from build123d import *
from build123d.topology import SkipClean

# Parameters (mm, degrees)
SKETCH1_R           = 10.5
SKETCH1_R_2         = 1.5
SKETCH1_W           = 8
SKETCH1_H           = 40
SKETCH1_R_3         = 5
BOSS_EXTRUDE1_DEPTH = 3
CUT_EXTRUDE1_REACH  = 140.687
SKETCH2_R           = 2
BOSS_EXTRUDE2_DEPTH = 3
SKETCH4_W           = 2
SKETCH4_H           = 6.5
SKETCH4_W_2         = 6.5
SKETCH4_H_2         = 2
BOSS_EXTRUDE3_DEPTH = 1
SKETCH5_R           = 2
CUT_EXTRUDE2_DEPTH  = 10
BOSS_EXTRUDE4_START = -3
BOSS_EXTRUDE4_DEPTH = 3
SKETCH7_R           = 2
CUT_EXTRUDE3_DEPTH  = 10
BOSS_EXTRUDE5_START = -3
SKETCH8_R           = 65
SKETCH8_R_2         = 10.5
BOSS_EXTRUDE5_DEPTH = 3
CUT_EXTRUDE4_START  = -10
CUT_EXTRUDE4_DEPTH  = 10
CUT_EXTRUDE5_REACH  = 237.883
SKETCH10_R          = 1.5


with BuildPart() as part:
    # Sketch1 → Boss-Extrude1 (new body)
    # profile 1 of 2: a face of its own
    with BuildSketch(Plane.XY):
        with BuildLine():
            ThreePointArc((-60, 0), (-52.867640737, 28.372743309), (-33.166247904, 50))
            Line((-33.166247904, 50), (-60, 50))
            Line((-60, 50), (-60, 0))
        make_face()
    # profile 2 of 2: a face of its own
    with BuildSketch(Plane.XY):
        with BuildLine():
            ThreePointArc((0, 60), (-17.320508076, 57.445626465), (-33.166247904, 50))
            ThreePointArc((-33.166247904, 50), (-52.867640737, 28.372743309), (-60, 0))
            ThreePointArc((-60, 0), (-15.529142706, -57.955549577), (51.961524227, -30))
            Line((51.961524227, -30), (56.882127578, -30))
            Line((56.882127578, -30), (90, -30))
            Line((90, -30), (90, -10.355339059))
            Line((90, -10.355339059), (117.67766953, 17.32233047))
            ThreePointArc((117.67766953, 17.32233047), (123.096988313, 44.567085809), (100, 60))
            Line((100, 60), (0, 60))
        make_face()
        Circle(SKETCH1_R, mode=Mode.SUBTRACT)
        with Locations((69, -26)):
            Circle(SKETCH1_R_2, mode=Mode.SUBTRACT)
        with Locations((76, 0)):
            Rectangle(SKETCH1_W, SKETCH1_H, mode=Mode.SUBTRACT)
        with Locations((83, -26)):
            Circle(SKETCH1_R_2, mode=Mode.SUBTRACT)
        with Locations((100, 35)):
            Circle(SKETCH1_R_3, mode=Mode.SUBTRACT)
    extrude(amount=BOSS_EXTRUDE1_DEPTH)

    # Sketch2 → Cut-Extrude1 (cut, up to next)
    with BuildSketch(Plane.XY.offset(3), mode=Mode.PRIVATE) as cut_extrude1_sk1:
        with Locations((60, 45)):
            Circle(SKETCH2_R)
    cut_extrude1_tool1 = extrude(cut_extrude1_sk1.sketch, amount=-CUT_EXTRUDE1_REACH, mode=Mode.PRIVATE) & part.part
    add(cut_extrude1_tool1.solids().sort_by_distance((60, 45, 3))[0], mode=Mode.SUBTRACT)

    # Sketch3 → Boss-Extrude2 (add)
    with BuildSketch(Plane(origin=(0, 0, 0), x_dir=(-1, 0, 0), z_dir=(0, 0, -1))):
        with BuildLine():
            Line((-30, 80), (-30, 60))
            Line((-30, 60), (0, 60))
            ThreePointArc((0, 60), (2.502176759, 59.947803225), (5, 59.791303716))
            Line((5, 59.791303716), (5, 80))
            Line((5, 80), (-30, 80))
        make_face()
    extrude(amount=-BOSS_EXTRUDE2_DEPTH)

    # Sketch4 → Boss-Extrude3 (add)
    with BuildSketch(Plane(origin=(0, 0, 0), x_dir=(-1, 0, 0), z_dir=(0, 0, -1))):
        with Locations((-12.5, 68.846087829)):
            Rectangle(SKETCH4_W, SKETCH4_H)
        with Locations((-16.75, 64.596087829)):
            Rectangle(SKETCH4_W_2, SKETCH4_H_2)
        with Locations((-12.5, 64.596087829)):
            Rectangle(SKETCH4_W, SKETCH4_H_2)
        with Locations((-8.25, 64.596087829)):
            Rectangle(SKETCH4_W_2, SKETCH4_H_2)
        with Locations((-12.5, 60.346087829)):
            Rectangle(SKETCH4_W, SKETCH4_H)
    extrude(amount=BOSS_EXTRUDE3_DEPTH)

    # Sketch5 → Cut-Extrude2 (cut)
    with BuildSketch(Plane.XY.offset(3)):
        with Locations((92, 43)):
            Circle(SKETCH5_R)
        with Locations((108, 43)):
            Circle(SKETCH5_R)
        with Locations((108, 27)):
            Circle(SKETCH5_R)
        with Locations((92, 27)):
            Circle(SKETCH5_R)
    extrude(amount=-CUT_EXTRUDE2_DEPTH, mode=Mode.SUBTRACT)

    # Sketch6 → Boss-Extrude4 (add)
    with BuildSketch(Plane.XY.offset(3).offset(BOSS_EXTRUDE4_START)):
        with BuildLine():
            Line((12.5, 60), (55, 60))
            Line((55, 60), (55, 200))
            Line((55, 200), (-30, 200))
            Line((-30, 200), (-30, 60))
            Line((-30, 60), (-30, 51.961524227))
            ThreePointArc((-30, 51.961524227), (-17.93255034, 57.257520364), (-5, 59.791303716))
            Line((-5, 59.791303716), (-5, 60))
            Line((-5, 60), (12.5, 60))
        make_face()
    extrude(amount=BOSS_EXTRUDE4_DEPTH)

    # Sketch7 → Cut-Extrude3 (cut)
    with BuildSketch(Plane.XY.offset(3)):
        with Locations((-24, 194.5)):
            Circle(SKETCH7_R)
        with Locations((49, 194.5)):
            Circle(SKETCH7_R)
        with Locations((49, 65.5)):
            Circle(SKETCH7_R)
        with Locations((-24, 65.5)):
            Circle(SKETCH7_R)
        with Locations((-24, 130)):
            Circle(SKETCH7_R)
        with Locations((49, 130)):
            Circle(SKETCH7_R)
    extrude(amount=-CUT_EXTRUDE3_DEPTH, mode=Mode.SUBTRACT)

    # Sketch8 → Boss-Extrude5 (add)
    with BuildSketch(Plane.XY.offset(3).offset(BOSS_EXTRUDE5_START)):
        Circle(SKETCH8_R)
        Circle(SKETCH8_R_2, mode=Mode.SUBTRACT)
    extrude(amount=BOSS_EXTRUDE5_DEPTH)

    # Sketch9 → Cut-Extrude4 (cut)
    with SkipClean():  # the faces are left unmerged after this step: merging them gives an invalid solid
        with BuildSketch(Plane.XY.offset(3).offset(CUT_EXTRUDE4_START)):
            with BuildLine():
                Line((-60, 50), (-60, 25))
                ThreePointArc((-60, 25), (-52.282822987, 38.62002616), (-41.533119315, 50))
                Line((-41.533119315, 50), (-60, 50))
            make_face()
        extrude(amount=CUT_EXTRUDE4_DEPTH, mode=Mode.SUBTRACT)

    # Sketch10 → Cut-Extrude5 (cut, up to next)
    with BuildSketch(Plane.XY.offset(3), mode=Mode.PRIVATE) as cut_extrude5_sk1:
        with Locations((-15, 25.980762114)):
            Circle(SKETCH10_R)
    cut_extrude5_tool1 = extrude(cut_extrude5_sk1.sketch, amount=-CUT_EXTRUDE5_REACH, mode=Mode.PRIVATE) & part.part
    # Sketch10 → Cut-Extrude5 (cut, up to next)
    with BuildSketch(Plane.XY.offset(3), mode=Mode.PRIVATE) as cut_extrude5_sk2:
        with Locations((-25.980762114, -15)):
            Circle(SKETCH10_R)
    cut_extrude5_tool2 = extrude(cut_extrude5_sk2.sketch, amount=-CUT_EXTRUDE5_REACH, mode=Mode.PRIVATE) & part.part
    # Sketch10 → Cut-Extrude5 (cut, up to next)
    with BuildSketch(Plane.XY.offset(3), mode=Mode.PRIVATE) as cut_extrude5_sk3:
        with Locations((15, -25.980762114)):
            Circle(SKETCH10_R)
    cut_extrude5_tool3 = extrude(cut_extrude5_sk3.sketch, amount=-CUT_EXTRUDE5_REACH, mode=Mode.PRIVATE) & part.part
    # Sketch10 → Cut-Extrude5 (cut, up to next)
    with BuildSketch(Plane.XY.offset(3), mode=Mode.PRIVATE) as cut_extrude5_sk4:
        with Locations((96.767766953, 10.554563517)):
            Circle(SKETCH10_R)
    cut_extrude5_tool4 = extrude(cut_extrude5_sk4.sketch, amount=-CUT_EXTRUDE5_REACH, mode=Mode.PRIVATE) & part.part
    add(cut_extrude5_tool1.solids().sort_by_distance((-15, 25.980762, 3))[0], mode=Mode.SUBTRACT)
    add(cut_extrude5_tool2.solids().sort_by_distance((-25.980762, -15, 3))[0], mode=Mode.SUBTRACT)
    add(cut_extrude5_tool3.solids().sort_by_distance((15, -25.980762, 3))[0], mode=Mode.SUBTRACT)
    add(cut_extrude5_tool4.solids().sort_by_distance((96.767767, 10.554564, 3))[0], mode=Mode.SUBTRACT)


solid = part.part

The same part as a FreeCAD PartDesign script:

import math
import FreeCAD as App
import Part
import Sketcher

V = App.Vector
Q = App.Units.Quantity


def add_polygon(sketch, points):
    """Adds a closed chain of lines whose ends are joined by coincident constraints."""
    first, n = sketch.GeometryCount, len(points)
    for a, b in zip(points, points[1:] + points[:1]):
        sketch.addGeometry(Part.LineSegment(App.Vector(*a, 0), App.Vector(*b, 0)), False)
    for i in range(n):
        sketch.addConstraint(Sketcher.Constraint("Coincident", first + i, 2, first + (i + 1) % n, 1))

doc = App.newDocument("Part")
body = doc.addObject("PartDesign::Body", "Body")

# Sketch on XY plane
sketch1 = body.newObject("Sketcher::SketchObject", "Sketch")
sketch1.AttachmentSupport = (doc.getObject("XY_Plane"), [""])
sketch1.MapMode = "FlatFace"
sketch1.addGeometry(Part.LineSegment(V(-33.166248, 50, 0), V(-60, 50, 0)), False)  # 0
sketch1.addGeometry(Part.LineSegment(V(-60, 50, 0), V(-60, 0, 0)), False)  # 1
sketch1.addGeometry(Part.ArcOfCircle(Part.Circle(V(0, 0, 0), V(0, 0, 1), 60), math.radians(180), math.radians(330)), False)  # 2
sketch1.addGeometry(Part.LineSegment(V(51.961524, -30, 0), V(90, -30, 0)), False)  # 3
sketch1.addGeometry(Part.LineSegment(V(90, -30, 0), V(90, -10.355339, 0)), False)  # 4
sketch1.addGeometry(Part.LineSegment(V(90, -10.355339, 0), V(117.67767, 17.32233, 0)), False)  # 5
sketch1.addGeometry(Part.ArcOfCircle(Part.Circle(V(100, 35, 0), V(0, 0, 1), 25), math.radians(-45), math.radians(90)), False)  # 6
sketch1.addGeometry(Part.LineSegment(V(100, 60, 0), V(0, 60, 0)), False)  # 7
sketch1.addGeometry(Part.ArcOfCircle(Part.Circle(V(0, 0, 0), V(0, 0, 1), 60), math.radians(90), math.radians(123.55731)), False)  # 8
sketch1.addGeometry(Part.Circle(V(100, 35, 0), V(0, 0, 1), 5), False)  # 9
sketch1.addGeometry(Part.Circle(V(0, 0, 0), V(0, 0, 1), 10.5), False)  # 10
sketch1.addGeometry(Part.Circle(V(69, -26, 0), V(0, 0, 1), 1.5), False)  # 11
sketch1.addGeometry(Part.Circle(V(83, -26, 0), V(0, 0, 1), 1.5), False)  # 12
add_polygon(sketch1, [(80, -20), (72, -20), (72, 20), (80, 20)])  # lines 13-16
sketch1.addConstraint([
    Sketcher.Constraint("Coincident", 0, 2, 1, 1),
    Sketcher.Constraint("Tangent", 1, 2, 2, 1),
    Sketcher.Constraint("Coincident", 2, 2, 3, 1),
    Sketcher.Constraint("Coincident", 3, 2, 4, 1),
    Sketcher.Constraint("Coincident", 4, 2, 5, 1),
    Sketcher.Constraint("Tangent", 5, 2, 6, 1),
    Sketcher.Constraint("Tangent", 6, 2, 7, 1),
    Sketcher.Constraint("Tangent", 7, 2, 8, 1),
    Sketcher.Constraint("Coincident", 8, 2, 0, 1),
    Sketcher.Constraint("Horizontal", 0),
    Sketcher.Constraint("Vertical", 1),
    Sketcher.Constraint("Horizontal", 3),
    Sketcher.Constraint("Vertical", 4),
    Sketcher.Constraint("Horizontal", 7),
    Sketcher.Constraint("Horizontal", 13),
    Sketcher.Constraint("Vertical", 14),
    Sketcher.Constraint("Horizontal", 15),
    Sketcher.Constraint("Vertical", 16),
    Sketcher.Constraint("Coincident", 2, 3, -1, 1),
    Sketcher.Constraint("Coincident", 8, 3, -1, 1),
    Sketcher.Constraint("Coincident", 10, 3, -1, 1),
    Sketcher.Constraint("Coincident", 9, 3, 6, 3),
    Sketcher.Constraint("Equal", 2, 8),
    Sketcher.Constraint("Equal", 11, 12),
    Sketcher.Constraint("Horizontal", 11, 3, 12, 3),
    Sketcher.Constraint("Diameter", 9, Q("10 mm")),
    Sketcher.Constraint("Diameter", 10, Q("21 mm")),
    Sketcher.Constraint("Diameter", 11, Q("3 mm")),
    Sketcher.Constraint("Radius", 2, Q("60 mm")),
    Sketcher.Constraint("Radius", 6, Q("25 mm")),
    Sketcher.Constraint("DistanceX", 7, 2, 7, 1, Q("100 mm")),
    Sketcher.Constraint("DistanceX", 13, 2, 13, 1, Q("8 mm")),
    Sketcher.Constraint("DistanceY", 1, 2, 1, 1, Q("50 mm")),
    Sketcher.Constraint("DistanceY", 14, 1, 14, 2, Q("40 mm")),
    Sketcher.Constraint("Angle", 5, Q("45 deg")),
    Sketcher.Constraint("DistanceX", -1, 1, 11, 3, Q("69 mm")),
    Sketcher.Constraint("DistanceY", 11, 3, -1, 1, Q("26 mm")),
    Sketcher.Constraint("DistanceX", -1, 1, 12, 3, Q("83 mm")),
    Sketcher.Constraint("DistanceY", 2, 2, -1, 1, Q("30 mm")),
    Sketcher.Constraint("DistanceX", -1, 1, 3, 2, Q("90 mm")),
    Sketcher.Constraint("DistanceX", -1, 1, 13, 2, Q("72 mm")),
    Sketcher.Constraint("DistanceY", 13, 2, -1, 1, Q("20 mm")),
])
pad1 = body.newObject("PartDesign::Pad", "Pad")
pad1.Profile = sketch1
pad1.Length = 3

# Sketch on XY plane
sketch2 = body.newObject("Sketcher::SketchObject", "Sketch001")
sketch2.AttachmentSupport = (doc.getObject("XY_Plane"), [""])
sketch2.MapMode = "FlatFace"
sketch2.AttachmentOffset = App.Placement(V(0, 0, 3), App.Rotation())
sketch2.addGeometry(Part.Circle(V(60, 45, 0), V(0, 0, 1), 2), False)
sketch2.addConstraint([
    Sketcher.Constraint("Diameter", 0, Q("4 mm")),
    Sketcher.Constraint("DistanceX", -1, 1, 0, 3, Q("60 mm")),
    Sketcher.Constraint("DistanceY", -1, 1, 0, 3, Q("45 mm")),
])
pocket1 = body.newObject("PartDesign::Pocket", "Pocket")
pocket1.Profile = sketch2
pocket1.Type = "UpToFirst"

# Sketch on XY plane
sketch3 = body.newObject("Sketcher::SketchObject", "Sketch002")
sketch3.AttachmentSupport = (doc.getObject("XY_Plane"), [""])
sketch3.MapMode = "FlatFace"
sketch3.addGeometry([
    Part.LineSegment(V(30, 80, 0), V(30, 60, 0)),  # 0
    Part.LineSegment(V(30, 60, 0), V(0, 60, 0)),  # 1
    Part.ArcOfCircle(Part.Circle(V(0, 0, 0), V(0, 0, 1), 60), math.radians(90), math.radians(94.780192)),  # 2
    Part.LineSegment(V(-5, 59.791304, 0), V(-5, 80, 0)),  # 3
    Part.LineSegment(V(-5, 80, 0), V(30, 80, 0)),  # 4
], False)
sketch3.addConstraint([
    Sketcher.Constraint("Coincident", 0, 2, 1, 1),
    Sketcher.Constraint("Tangent", 1, 2, 2, 1),
    Sketcher.Constraint("Coincident", 2, 2, 3, 1),
    Sketcher.Constraint("Coincident", 3, 2, 4, 1),
    Sketcher.Constraint("Coincident", 4, 2, 0, 1),
    Sketcher.Constraint("Vertical", 0),
    Sketcher.Constraint("Horizontal", 1),
    Sketcher.Constraint("Vertical", 3),
    Sketcher.Constraint("Horizontal", 4),
    Sketcher.Constraint("Coincident", 2, 3, -1, 1),
    Sketcher.Constraint("Radius", 2, Q("60 mm")),
    Sketcher.Constraint("DistanceX", 1, 2, 1, 1, Q("30 mm")),
    Sketcher.Constraint("DistanceX", 4, 1, 4, 2, Q("35 mm")),
    Sketcher.Constraint("DistanceY", 0, 2, 0, 1, Q("20 mm")),
])
pad2 = body.newObject("PartDesign::Pad", "Pad001")
pad2.Profile = sketch3
pad2.Length = 3

# Sketch on XY plane
sketch4 = body.newObject("Sketcher::SketchObject", "Sketch003")
sketch4.AttachmentSupport = (doc.getObject("XY_Plane"), [""])
sketch4.MapMode = "FlatFace"
add_polygon(sketch4, [(13.5, 72.096088), (13.5, 65.596088), (20, 65.596088), (20, 63.596088), (13.5, 63.596088), (13.5, 57.096088), (11.5, 57.096088), (11.5, 63.596088), (5, 63.596088), (5, 65.596088), (11.5, 65.596088), (11.5, 72.096088)])  # lines 0-11
sketch4.addConstraint([
    Sketcher.Constraint("Vertical", 0),
    Sketcher.Constraint("Horizontal", 1),
    Sketcher.Constraint("Vertical", 2),
    Sketcher.Constraint("Horizontal", 3),
    Sketcher.Constraint("Vertical", 4),
    Sketcher.Constraint("Horizontal", 5),
    Sketcher.Constraint("Vertical", 6),
    Sketcher.Constraint("Horizontal", 7),
    Sketcher.Constraint("Vertical", 8),
    Sketcher.Constraint("Horizontal", 9),
    Sketcher.Constraint("Vertical", 10),
    Sketcher.Constraint("Horizontal", 11),
    Sketcher.Constraint("Horizontal", 3, 2, 6, 2),
    Sketcher.Constraint("Horizontal", 1, 2, 8, 2),
    Sketcher.Constraint("Vertical", 0, 2, 3, 2),
    Sketcher.Constraint("Vertical", 6, 2, 9, 2),
    Sketcher.Constraint("Equal", 3, 7),
    Sketcher.Constraint("Equal", 9, 0),
    Sketcher.Constraint("Equal", 11, 2),
    Sketcher.Constraint("Equal", 0, 4),
    Sketcher.Constraint("DistanceX", 5, 2, 5, 1, Q("2 mm")),
    Sketcher.Constraint("DistanceX", 1, 1, 1, 2, Q("6.5 mm")),
    Sketcher.Constraint("DistanceX", -1, 1, 1, 2, Q("20 mm")),
    Sketcher.Constraint("DistanceY", -1, 1, 0, 2, Q("65.596088 mm")),
])
pad3 = body.newObject("PartDesign::Pad", "Pad002")
pad3.Profile = sketch4
pad3.Length = 1
pad3.Reversed = True

# Sketch on XY plane
sketch5 = body.newObject("Sketcher::SketchObject", "Sketch004")
sketch5.AttachmentSupport = (doc.getObject("XY_Plane"), [""])
sketch5.MapMode = "FlatFace"
sketch5.AttachmentOffset = App.Placement(V(0, 0, 3), App.Rotation())
sketch5.addGeometry([
    Part.Circle(V(92, 43, 0), V(0, 0, 1), 2),
    Part.Circle(V(108, 43, 0), V(0, 0, 1), 2),
    Part.Circle(V(108, 27, 0), V(0, 0, 1), 2),
    Part.Circle(V(92, 27, 0), V(0, 0, 1), 2),
], False)
sketch5.addConstraint([
    Sketcher.Constraint("Equal", 0, 1),
    Sketcher.Constraint("Equal", 1, 2),
    Sketcher.Constraint("Equal", 2, 3),
    Sketcher.Constraint("Horizontal", 0, 3, 1, 3),
    Sketcher.Constraint("Horizontal", 2, 3, 3, 3),
    Sketcher.Constraint("Vertical", 1, 3, 2, 3),
    Sketcher.Constraint("Vertical", 0, 3, 3, 3),
    Sketcher.Constraint("Diameter", 0, Q("4 mm")),
    Sketcher.Constraint("DistanceX", -1, 1, 0, 3, Q("92 mm")),
    Sketcher.Constraint("DistanceY", -1, 1, 0, 3, Q("43 mm")),
    Sketcher.Constraint("DistanceX", -1, 1, 1, 3, Q("108 mm")),
    Sketcher.Constraint("DistanceY", -1, 1, 2, 3, Q("27 mm")),
])
pocket2 = body.newObject("PartDesign::Pocket", "Pocket001")
pocket2.Profile = sketch5
pocket2.Length = 10

# Sketch on XY plane
sketch6 = body.newObject("Sketcher::SketchObject", "Sketch005")
sketch6.AttachmentSupport = (doc.getObject("XY_Plane"), [""])
sketch6.MapMode = "FlatFace"
sketch6.addGeometry([
    Part.LineSegment(V(55, 60, 0), V(55, 200, 0)),  # 0
    Part.LineSegment(V(55, 200, 0), V(-30, 200, 0)),  # 1
    Part.LineSegment(V(-30, 200, 0), V(-30, 51.961524, 0)),  # 2
    Part.ArcOfCircle(Part.Circle(V(0, 0, 0), V(0, 0, 1), 60), math.radians(94.780192), math.radians(120)),  # 3
    Part.LineSegment(V(-5, 59.791304, 0), V(-5, 60, 0)),  # 4
    Part.LineSegment(V(-5, 60, 0), V(55, 60, 0)),  # 5
], False)
sketch6.addConstraint([
    Sketcher.Constraint("Coincident", 0, 2, 1, 1),
    Sketcher.Constraint("Coincident", 1, 2, 2, 1),
    Sketcher.Constraint("Coincident", 2, 2, 3, 2),
    Sketcher.Constraint("Coincident", 3, 1, 4, 1),
    Sketcher.Constraint("Coincident", 4, 2, 5, 1),
    Sketcher.Constraint("Coincident", 5, 2, 0, 1),
    Sketcher.Constraint("Vertical", 0),
    Sketcher.Constraint("Horizontal", 1),
    Sketcher.Constraint("Vertical", 2),
    Sketcher.Constraint("Vertical", 4),
    Sketcher.Constraint("Horizontal", 5),
    Sketcher.Constraint("Coincident", 3, 3, -1, 1),
    Sketcher.Constraint("Radius", 3, Q("60 mm")),
    Sketcher.Constraint("DistanceX", 1, 2, 1, 1, Q("85 mm")),
    Sketcher.Constraint("DistanceX", 5, 1, 5, 2, Q("60 mm")),
    Sketcher.Constraint("DistanceY", 0, 1, 0, 2, Q("140 mm")),
    Sketcher.Constraint("DistanceX", -1, 1, 0, 2, Q("55 mm")),
    Sketcher.Constraint("DistanceY", -1, 1, 0, 2, Q("200 mm")),
])
pad4 = body.newObject("PartDesign::Pad", "Pad003")
pad4.Profile = sketch6
pad4.Length = 3

# Sketch on XY plane
sketch7 = body.newObject("Sketcher::SketchObject", "Sketch006")
sketch7.AttachmentSupport = (doc.getObject("XY_Plane"), [""])
sketch7.MapMode = "FlatFace"
sketch7.AttachmentOffset = App.Placement(V(0, 0, 3), App.Rotation())
sketch7.addGeometry([
    Part.Circle(V(-24, 194.5, 0), V(0, 0, 1), 2),  # 0
    Part.Circle(V(49, 194.5, 0), V(0, 0, 1), 2),  # 1
    Part.Circle(V(49, 65.5, 0), V(0, 0, 1), 2),  # 2
    Part.Circle(V(-24, 65.5, 0), V(0, 0, 1), 2),  # 3
    Part.Circle(V(-24, 130, 0), V(0, 0, 1), 2),  # 4
    Part.Circle(V(49, 130, 0), V(0, 0, 1), 2),  # 5
], False)
sketch7.addConstraint([
    Sketcher.Constraint("Equal", 0, 1),
    Sketcher.Constraint("Equal", 1, 2),
    Sketcher.Constraint("Equal", 2, 3),
    Sketcher.Constraint("Equal", 3, 4),
    Sketcher.Constraint("Equal", 4, 5),
    Sketcher.Constraint("Horizontal", 0, 3, 1, 3),
    Sketcher.Constraint("Horizontal", 2, 3, 3, 3),
    Sketcher.Constraint("Horizontal", 4, 3, 5, 3),
    Sketcher.Constraint("Vertical", 1, 3, 2, 3),
    Sketcher.Constraint("Vertical", 0, 3, 3, 3),
    Sketcher.Constraint("Vertical", 3, 3, 4, 3),
    Sketcher.Constraint("Vertical", 2, 3, 5, 3),
    Sketcher.Constraint("Diameter", 0, Q("4 mm")),
    Sketcher.Constraint("DistanceX", 0, 3, -1, 1, Q("24 mm")),
    Sketcher.Constraint("DistanceX", -1, 1, 1, 3, Q("49 mm")),
    Sketcher.Constraint("DistanceY", -1, 1, 4, 3, Q("130 mm")),
    Sketcher.Constraint("DistanceY", 2, 3, 1, 3, Q("129 mm")),
    Sketcher.Constraint("DistanceY", -1, 1, 0, 3, Q("194.5 mm")),
])
pocket3 = body.newObject("PartDesign::Pocket", "Pocket002")
pocket3.Profile = sketch7
pocket3.Length = 10

# Sketch on XY plane
sketch8 = body.newObject("Sketcher::SketchObject", "Sketch007")
sketch8.AttachmentSupport = (doc.getObject("XY_Plane"), [""])
sketch8.MapMode = "FlatFace"
sketch8.addGeometry([
    Part.Circle(V(0, 0, 0), V(0, 0, 1), 65),
    Part.Circle(V(0, 0, 0), V(0, 0, 1), 10.5),
], False)
sketch8.addConstraint([
    Sketcher.Constraint("Coincident", 0, 3, -1, 1),
    Sketcher.Constraint("Coincident", 1, 3, -1, 1),
    Sketcher.Constraint("Diameter", 0, Q("130 mm")),
    Sketcher.Constraint("Diameter", 1, Q("21 mm")),
])
pad5 = body.newObject("PartDesign::Pad", "Pad004")
pad5.Profile = sketch8
pad5.Length = 3

# Sketch on XY plane
sketch9 = body.newObject("Sketcher::SketchObject", "Sketch008")
sketch9.AttachmentSupport = (doc.getObject("XY_Plane"), [""])
sketch9.MapMode = "FlatFace"
sketch9.AttachmentOffset = App.Placement(V(0, 0, -7), App.Rotation())
sketch9.addGeometry([
    Part.LineSegment(V(-60, 50, 0), V(-60, 25, 0)),
    Part.ArcOfCircle(Part.Circle(V(0, 0, 0), V(0, 0, 1), 65), math.radians(129.715137), math.radians(157.380135)),
    Part.LineSegment(V(-41.533119, 50, 0), V(-60, 50, 0)),
], False)
sketch9.addConstraint([
    Sketcher.Constraint("Coincident", 0, 2, 1, 2),
    Sketcher.Constraint("Coincident", 1, 1, 2, 1),
    Sketcher.Constraint("Coincident", 2, 2, 0, 1),
    Sketcher.Constraint("Vertical", 0),
    Sketcher.Constraint("Horizontal", 2),
    Sketcher.Constraint("Coincident", 1, 3, -1, 1),
    Sketcher.Constraint("Radius", 1, Q("65 mm")),
    Sketcher.Constraint("DistanceY", 0, 2, 0, 1, Q("25 mm")),
    Sketcher.Constraint("DistanceX", 0, 2, -1, 1, Q("60 mm")),
])
pocket4 = body.newObject("PartDesign::Pocket", "Pocket003")
pocket4.Profile = sketch9
pocket4.Length = 10
pocket4.Reversed = True

# Sketch on XY plane
sketch10 = body.newObject("Sketcher::SketchObject", "Sketch009")
sketch10.AttachmentSupport = (doc.getObject("XY_Plane"), [""])
sketch10.MapMode = "FlatFace"
sketch10.AttachmentOffset = App.Placement(V(0, 0, 3), App.Rotation())
sketch10.addGeometry(Part.Circle(V(-15, 25.980762, 0), V(0, 0, 1), 1.5), False)
sketch10.addConstraint([
    Sketcher.Constraint("Diameter", 0, Q("3 mm")),
    Sketcher.Constraint("DistanceX", 0, 3, -1, 1, Q("15 mm")),
    Sketcher.Constraint("DistanceY", -1, 1, 0, 3, Q("25.980762 mm")),
])
pocket5 = body.newObject("PartDesign::Pocket", "Pocket004")
pocket5.Profile = sketch10
pocket5.Type = "UpToFirst"

# Sketch on XY plane
sketch11 = body.newObject("Sketcher::SketchObject", "Sketch010")
sketch11.AttachmentSupport = (doc.getObject("XY_Plane"), [""])
sketch11.MapMode = "FlatFace"
sketch11.AttachmentOffset = App.Placement(V(0, 0, 3), App.Rotation())
sketch11.addGeometry(Part.Circle(V(-25.980762, -15, 0), V(0, 0, 1), 1.5), False)
sketch11.addConstraint([
    Sketcher.Constraint("Diameter", 0, Q("3 mm")),
    Sketcher.Constraint("DistanceY", 0, 3, -1, 1, Q("15 mm")),
    Sketcher.Constraint("DistanceX", 0, 3, -1, 1, Q("25.980762 mm")),
])
pocket6 = body.newObject("PartDesign::Pocket", "Pocket005")
pocket6.Profile = sketch11
pocket6.Type = "UpToFirst"

# Sketch on XY plane
sketch12 = body.newObject("Sketcher::SketchObject", "Sketch011")
sketch12.AttachmentSupport = (doc.getObject("XY_Plane"), [""])
sketch12.MapMode = "FlatFace"
sketch12.AttachmentOffset = App.Placement(V(0, 0, 3), App.Rotation())
sketch12.addGeometry(Part.Circle(V(15, -25.980762, 0), V(0, 0, 1), 1.5), False)
sketch12.addConstraint([
    Sketcher.Constraint("Diameter", 0, Q("3 mm")),
    Sketcher.Constraint("DistanceX", -1, 1, 0, 3, Q("15 mm")),
    Sketcher.Constraint("DistanceY", 0, 3, -1, 1, Q("25.980762 mm")),
])
pocket7 = body.newObject("PartDesign::Pocket", "Pocket006")
pocket7.Profile = sketch12
pocket7.Type = "UpToFirst"

# Sketch on XY plane
sketch13 = body.newObject("Sketcher::SketchObject", "Sketch012")
sketch13.AttachmentSupport = (doc.getObject("XY_Plane"), [""])
sketch13.MapMode = "FlatFace"
sketch13.AttachmentOffset = App.Placement(V(0, 0, 3), App.Rotation())
sketch13.addGeometry(Part.Circle(V(96.767767, 10.554564, 0), V(0, 0, 1), 1.5), False)
sketch13.addConstraint([
    Sketcher.Constraint("Diameter", 0, Q("3 mm")),
    Sketcher.Constraint("DistanceX", -1, 1, 0, 3, Q("96.767767 mm")),
    Sketcher.Constraint("DistanceY", -1, 1, 0, 3, Q("10.554564 mm")),
])
pocket8 = body.newObject("PartDesign::Pocket", "Pocket007")
pocket8.Profile = sketch13
pocket8.Type = "UpToFirst"

doc.recompute()
